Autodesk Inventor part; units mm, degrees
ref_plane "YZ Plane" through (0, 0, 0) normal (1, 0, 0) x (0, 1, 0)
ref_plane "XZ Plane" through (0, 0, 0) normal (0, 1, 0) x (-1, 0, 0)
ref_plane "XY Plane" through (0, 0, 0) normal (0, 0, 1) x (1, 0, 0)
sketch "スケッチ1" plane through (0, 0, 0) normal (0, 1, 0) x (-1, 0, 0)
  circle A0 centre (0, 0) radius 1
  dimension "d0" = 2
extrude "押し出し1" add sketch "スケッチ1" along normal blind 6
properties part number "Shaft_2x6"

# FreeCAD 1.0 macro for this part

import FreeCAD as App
import Part
import Sketcher
from FreeCAD import Vector
Q = App.Units.Quantity

doc = App.newDocument("Part")
params = doc.addObject("Spreadsheet::Sheet", "Params")
for row, (alias, value) in enumerate([
    ("sketch1_diameter", "2 mm"),
    ("pad1_length", "6 mm"),
], start=1):
    params.set(f"A{row}", alias)
    params.set(f"B{row}", "=" + value)
    params.setAlias(f"B{row}", alias)

body = doc.addObject("PartDesign::Body", "Body")

# Sketch on XZ plane
sketch1 = body.newObject("Sketcher::SketchObject", "Sketch")
sketch1.AttachmentSupport = (doc.getObject("XZ_Plane"), [""])
sketch1.MapMode = "FlatFace"
sketch1.addGeometry(Part.Circle(Vector(0, 0, 0), Vector(0, 0, 1), 1), False)
sketch1.addConstraint([
    Sketcher.Constraint("Coincident", 0, 3, -1, 1),
    Sketcher.Constraint("Diameter", 0, Q("2 mm")),
])
sketch1.setExpression("Constraints[1]", "Params.sketch1_diameter")
pad1 = body.newObject("PartDesign::Pad", "Pad")
pad1.Profile = sketch1
pad1.setExpression("Length", "Params.pad1_length")
pad1.Reversed = True

doc.recompute()
